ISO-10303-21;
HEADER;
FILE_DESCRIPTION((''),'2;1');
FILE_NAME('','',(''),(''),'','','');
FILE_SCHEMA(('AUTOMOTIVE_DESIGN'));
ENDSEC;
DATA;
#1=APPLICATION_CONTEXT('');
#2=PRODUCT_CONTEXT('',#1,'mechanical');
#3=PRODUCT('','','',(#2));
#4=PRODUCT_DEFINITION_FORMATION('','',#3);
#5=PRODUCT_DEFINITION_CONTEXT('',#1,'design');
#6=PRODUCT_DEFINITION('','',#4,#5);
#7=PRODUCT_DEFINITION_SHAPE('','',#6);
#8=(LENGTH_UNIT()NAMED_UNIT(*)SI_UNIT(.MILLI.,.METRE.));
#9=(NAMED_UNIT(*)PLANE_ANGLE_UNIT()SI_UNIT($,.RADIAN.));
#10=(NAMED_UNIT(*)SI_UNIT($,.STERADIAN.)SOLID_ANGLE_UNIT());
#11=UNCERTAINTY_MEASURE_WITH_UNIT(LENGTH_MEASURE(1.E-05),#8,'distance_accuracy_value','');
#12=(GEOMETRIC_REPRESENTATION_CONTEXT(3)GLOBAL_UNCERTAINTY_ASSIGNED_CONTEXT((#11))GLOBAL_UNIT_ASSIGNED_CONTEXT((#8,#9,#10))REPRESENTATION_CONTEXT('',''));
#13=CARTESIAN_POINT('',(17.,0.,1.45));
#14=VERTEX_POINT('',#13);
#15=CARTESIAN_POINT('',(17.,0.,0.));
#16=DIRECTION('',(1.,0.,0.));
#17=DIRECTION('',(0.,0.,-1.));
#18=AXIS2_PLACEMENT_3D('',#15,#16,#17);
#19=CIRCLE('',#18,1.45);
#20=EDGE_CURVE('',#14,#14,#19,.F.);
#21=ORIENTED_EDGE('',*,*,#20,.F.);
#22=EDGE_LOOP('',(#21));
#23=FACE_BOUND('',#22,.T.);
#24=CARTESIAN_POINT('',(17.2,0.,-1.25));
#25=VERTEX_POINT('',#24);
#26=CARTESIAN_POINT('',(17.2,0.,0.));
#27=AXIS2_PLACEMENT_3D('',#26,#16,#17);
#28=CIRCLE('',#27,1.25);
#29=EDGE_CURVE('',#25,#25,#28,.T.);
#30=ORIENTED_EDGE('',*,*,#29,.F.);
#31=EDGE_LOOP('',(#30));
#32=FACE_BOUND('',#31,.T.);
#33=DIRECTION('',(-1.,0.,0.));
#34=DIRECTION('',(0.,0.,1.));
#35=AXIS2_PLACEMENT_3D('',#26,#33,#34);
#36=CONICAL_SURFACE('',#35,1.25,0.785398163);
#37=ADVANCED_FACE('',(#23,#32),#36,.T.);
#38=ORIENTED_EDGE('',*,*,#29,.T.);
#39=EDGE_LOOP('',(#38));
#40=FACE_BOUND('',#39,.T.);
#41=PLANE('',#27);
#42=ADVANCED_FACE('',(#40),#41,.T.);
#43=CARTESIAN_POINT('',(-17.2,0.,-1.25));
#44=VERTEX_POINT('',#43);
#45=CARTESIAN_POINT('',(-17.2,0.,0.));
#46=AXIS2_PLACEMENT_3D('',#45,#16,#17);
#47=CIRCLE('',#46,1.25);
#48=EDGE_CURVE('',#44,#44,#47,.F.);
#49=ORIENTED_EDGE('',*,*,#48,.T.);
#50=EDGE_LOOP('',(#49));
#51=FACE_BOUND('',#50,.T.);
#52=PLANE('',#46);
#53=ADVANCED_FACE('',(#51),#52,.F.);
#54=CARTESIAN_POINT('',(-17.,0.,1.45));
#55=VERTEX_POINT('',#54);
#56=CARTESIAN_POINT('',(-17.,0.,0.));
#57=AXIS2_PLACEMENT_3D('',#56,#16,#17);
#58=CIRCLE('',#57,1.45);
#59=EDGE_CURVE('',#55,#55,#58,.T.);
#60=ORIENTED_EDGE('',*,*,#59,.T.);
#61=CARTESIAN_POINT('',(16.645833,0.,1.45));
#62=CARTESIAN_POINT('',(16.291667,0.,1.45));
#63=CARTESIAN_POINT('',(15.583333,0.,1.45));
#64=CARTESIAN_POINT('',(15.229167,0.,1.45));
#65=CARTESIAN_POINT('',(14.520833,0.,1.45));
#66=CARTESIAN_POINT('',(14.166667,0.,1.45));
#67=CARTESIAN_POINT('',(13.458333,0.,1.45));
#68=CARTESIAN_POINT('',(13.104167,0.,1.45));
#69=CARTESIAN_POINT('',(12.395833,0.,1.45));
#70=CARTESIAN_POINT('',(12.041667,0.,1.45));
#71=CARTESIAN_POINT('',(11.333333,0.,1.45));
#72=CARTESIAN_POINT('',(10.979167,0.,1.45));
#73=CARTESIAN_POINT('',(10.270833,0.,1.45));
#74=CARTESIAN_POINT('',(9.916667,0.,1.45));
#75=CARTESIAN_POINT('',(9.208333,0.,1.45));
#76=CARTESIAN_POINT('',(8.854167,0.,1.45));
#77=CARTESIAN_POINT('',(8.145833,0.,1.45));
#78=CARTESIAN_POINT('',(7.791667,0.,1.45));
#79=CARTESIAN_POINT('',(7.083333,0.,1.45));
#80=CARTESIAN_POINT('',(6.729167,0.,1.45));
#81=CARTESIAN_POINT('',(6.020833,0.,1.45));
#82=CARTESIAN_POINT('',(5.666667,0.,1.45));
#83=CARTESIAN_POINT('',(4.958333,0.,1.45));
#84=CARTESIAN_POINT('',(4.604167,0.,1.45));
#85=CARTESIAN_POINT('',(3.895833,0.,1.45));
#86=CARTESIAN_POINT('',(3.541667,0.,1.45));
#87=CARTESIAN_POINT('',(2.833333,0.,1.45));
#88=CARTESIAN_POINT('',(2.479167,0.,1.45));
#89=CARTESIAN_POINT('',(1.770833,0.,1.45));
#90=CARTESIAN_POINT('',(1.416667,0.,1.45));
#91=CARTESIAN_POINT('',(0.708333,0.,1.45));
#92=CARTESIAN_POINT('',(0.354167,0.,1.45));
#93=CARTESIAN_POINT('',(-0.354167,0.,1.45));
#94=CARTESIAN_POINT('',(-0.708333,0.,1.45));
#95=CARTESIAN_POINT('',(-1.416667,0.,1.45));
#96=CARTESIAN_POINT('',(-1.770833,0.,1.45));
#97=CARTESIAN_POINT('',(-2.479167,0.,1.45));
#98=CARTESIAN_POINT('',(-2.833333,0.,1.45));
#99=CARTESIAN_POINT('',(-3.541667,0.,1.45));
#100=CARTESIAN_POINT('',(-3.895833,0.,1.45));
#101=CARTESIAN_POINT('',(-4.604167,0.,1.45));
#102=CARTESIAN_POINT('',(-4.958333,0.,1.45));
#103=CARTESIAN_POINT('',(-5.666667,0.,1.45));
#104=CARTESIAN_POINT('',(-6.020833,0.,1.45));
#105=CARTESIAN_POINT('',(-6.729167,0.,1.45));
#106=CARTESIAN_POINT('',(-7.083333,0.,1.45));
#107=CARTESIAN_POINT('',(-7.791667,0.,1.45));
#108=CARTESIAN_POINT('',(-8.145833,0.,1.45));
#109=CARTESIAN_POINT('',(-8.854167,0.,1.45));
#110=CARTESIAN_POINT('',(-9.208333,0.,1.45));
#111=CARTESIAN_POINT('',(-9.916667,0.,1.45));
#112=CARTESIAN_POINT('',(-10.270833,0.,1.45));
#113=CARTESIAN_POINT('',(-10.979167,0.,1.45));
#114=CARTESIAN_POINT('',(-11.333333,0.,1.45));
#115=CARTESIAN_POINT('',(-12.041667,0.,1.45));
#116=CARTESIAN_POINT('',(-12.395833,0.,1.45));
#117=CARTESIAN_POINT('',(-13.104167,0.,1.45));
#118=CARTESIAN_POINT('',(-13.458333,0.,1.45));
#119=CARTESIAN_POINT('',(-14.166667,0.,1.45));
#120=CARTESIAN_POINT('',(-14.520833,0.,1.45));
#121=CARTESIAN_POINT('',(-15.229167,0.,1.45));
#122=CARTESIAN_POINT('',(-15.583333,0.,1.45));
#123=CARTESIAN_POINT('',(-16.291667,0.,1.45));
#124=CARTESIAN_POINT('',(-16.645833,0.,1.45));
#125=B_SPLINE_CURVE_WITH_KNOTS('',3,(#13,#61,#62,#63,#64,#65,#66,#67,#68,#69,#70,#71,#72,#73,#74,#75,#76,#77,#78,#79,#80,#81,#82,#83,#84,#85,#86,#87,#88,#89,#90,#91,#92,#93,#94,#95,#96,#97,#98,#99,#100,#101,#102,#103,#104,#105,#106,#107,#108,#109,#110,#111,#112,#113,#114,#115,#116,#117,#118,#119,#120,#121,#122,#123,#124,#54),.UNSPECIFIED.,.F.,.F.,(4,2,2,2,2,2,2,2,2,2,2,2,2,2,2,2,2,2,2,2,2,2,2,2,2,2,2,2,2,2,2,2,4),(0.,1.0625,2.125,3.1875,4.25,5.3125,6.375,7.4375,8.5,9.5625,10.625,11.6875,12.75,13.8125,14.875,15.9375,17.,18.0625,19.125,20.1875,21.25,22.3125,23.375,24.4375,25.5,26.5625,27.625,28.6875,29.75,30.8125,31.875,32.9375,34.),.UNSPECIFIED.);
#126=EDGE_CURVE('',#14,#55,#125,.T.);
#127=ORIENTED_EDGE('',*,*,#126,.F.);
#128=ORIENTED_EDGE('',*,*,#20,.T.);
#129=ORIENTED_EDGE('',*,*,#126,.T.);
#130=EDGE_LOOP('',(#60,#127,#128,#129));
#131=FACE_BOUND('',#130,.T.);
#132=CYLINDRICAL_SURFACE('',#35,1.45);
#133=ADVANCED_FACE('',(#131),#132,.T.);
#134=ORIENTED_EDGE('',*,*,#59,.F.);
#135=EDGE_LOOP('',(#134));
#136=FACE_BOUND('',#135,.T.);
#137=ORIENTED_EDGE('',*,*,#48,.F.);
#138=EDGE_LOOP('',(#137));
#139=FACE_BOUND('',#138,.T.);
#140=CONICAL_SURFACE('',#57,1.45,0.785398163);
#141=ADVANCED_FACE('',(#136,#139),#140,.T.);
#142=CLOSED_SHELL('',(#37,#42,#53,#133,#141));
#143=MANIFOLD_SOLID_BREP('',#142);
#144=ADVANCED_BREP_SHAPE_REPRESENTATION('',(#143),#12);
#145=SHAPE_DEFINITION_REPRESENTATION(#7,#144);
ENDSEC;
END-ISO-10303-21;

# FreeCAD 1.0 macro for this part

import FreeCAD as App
import Part
import Sketcher
from FreeCAD import Vector


def edges_at(feature, points):
    """Names of the edges that pass closest to the given points."""
    edges = feature.Shape.Edges
    near = lambda p: min(range(len(edges)), key=lambda i: edges[i].distToShape(Part.Vertex(*p))[0])
    return sorted({f"Edge{near(p) + 1}" for p in points})

doc = App.newDocument("Part")
params = doc.addObject("Spreadsheet::Sheet", "Params")
for row, (alias, value) in enumerate([
    ("sketch1_diameter", "2.9 mm"),
    ("pad1_length", "34.4 mm"),
    ("chamfer_size", "0.2 mm"),
], start=1):
    params.set(f"A{row}", alias)
    params.set(f"B{row}", "=" + value)
    params.setAlias(f"B{row}", alias)

body = doc.addObject("PartDesign::Body", "Body")

# Sketch on YZ plane
sketch1 = body.newObject("Sketcher::SketchObject", "Sketch")
sketch1.AttachmentSupport = (doc.getObject("YZ_Plane"), [""])
sketch1.MapMode = "FlatFace"
sketch1.addGeometry(Part.Circle(Vector(0, 0, 0), Vector(0, 0, 1), 1.45), False)
sketch1.addConstraint(Sketcher.Constraint("Coincident", 0, 3, -1, 1))
sketch1.addConstraint(Sketcher.Constraint("Diameter", 0, 2.9))
sketch1.setExpression("Constraints[1]", "Params.sketch1_diameter")
pad1 = body.newObject("PartDesign::Pad", "Pad")
pad1.Profile = sketch1
pad1.setExpression("Length", "Params.pad1_length")
pad1.Midplane = True
doc.recompute()

chamfer = body.newObject("PartDesign::Chamfer", "Chamfer")
chamfer.Base = (pad1, edges_at(pad1, [(-17.2, 0, -1.45), (17.2, 0, -1.45)]))
chamfer.setExpression("Size", "Params.chamfer_size")

doc.recompute()
